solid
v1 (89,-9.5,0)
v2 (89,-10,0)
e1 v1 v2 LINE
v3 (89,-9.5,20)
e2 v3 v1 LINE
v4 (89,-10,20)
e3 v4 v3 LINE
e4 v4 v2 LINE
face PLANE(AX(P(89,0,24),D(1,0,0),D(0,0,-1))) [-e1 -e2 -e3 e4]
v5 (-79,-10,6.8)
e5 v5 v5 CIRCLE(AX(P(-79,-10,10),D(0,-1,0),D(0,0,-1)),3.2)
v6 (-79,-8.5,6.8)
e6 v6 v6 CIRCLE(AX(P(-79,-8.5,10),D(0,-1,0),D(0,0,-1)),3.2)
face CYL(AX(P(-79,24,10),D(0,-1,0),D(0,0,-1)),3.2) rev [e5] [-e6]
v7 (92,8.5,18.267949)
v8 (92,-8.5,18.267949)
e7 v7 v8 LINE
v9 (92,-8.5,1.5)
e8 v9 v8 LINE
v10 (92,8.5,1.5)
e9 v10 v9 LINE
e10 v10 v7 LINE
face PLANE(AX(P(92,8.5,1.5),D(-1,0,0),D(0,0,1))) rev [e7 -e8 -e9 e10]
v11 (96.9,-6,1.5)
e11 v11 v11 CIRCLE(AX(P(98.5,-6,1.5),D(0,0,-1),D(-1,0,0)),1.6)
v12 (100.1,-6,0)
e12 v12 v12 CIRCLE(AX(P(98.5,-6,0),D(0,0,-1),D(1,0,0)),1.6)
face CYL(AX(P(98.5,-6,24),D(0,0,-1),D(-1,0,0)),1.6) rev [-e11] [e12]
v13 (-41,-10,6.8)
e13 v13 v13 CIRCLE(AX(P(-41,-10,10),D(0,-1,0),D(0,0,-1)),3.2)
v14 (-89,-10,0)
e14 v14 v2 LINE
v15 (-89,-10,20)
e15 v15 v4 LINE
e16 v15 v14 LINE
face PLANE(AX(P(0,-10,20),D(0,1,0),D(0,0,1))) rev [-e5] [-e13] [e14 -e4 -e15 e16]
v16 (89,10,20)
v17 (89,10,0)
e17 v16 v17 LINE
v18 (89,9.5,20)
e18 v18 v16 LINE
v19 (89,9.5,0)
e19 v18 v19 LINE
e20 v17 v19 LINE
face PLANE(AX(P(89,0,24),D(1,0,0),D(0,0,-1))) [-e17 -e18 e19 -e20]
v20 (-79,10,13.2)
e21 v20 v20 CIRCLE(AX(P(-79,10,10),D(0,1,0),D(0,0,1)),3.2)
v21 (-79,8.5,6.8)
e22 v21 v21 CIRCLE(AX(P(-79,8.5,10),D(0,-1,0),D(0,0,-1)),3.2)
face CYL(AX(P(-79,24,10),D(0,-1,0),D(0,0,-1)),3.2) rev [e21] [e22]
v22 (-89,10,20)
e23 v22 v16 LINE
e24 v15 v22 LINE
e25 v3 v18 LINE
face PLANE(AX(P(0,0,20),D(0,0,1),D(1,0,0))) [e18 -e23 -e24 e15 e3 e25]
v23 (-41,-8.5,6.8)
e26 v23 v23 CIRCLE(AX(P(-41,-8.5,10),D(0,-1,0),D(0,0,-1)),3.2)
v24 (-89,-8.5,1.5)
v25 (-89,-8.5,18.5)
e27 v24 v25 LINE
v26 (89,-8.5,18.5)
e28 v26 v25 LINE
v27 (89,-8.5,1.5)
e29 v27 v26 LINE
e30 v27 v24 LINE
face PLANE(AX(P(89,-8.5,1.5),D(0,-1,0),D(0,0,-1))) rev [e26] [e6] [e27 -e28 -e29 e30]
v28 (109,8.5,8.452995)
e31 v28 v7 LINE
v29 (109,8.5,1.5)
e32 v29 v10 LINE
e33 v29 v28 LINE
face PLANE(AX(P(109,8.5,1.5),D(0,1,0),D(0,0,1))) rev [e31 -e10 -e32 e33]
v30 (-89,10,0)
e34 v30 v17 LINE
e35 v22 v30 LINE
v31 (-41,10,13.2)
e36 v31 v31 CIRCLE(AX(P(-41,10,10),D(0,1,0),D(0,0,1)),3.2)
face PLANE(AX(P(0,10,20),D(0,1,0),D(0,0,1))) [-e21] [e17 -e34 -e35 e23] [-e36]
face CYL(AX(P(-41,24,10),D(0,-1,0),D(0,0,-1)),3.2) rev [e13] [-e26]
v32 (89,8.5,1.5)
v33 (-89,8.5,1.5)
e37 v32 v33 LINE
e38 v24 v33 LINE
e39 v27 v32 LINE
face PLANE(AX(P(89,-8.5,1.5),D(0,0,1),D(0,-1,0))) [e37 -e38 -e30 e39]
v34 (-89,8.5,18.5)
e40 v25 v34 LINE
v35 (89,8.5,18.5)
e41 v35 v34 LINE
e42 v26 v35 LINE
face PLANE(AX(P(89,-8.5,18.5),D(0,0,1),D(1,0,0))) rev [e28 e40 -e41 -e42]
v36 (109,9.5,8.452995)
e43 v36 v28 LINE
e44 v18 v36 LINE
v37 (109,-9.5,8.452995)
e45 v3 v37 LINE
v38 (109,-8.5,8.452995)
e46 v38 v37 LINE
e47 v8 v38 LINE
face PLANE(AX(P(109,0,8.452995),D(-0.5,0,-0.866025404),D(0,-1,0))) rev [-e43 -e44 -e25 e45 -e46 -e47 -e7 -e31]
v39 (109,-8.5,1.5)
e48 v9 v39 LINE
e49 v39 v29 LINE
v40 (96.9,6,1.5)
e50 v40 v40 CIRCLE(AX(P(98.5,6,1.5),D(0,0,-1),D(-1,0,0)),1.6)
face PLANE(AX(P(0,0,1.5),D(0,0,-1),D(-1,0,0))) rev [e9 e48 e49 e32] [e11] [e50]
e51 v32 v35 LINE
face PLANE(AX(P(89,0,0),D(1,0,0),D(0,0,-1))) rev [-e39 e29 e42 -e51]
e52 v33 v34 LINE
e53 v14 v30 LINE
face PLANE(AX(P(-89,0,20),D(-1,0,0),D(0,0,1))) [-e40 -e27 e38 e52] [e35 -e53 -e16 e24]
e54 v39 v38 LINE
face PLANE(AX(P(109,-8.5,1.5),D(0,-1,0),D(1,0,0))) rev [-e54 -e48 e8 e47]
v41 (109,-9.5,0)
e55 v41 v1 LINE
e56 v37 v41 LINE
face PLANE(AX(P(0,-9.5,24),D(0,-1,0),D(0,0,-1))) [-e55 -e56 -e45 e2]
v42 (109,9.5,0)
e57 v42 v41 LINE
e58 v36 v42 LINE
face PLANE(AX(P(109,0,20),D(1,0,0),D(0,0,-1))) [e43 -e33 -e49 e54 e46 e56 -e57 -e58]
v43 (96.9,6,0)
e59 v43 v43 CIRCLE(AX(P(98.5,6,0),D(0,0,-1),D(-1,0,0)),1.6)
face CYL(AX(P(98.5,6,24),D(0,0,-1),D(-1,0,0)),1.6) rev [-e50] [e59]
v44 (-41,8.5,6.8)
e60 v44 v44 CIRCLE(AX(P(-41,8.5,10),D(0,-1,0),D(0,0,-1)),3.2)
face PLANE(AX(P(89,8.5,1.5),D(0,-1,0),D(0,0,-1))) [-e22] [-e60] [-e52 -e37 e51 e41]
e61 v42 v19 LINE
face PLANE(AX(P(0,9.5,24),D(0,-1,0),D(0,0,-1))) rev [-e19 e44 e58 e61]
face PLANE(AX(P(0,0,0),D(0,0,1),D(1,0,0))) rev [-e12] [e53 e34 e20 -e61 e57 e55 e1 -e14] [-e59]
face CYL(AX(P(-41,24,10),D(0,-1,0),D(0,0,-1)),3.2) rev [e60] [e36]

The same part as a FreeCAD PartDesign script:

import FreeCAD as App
import Part
import Sketcher

V = App.Vector
Q = App.Units.Quantity


def edges_at(feature, points):
    """Names of the edges that pass closest to the given points."""
    edges = feature.Shape.Edges
    near = lambda p: min(range(len(edges)), key=lambda i: edges[i].distToShape(Part.Vertex(*p))[0])
    return sorted({f"Edge{near(p) + 1}" for p in points})

doc = App.newDocument("Part")
body = doc.addObject("PartDesign::Body", "Body")

sketch1 = body.newObject("Sketcher::SketchObject", "Sketch")
sketch1.AttachmentSupport = (doc.getObject("XY_Plane"), [""])
sketch1.MapMode = "FlatFace"
sketch1.addGeometry(Part.LineSegment(V(-89, 10, 0), V(-89, -10, 0)), False)
sketch1.addGeometry(Part.LineSegment(V(-89, -10, 0), V(109, -10, 0)), False)
sketch1.addGeometry(Part.LineSegment(V(109, -10, 0), V(109, 10, 0)), False)
sketch1.addGeometry(Part.LineSegment(V(109, 10, 0), V(-89, 10, 0)), False)
sketch1.addConstraint(Sketcher.Constraint("Coincident", 0, 2, 1, 1))
sketch1.addConstraint(Sketcher.Constraint("Coincident", 1, 2, 2, 1))
sketch1.addConstraint(Sketcher.Constraint("Coincident", 2, 2, 3, 1))
sketch1.addConstraint(Sketcher.Constraint("Coincident", 3, 2, 0, 1))
sketch1.addConstraint(Sketcher.Constraint("Vertical", 0))
sketch1.addConstraint(Sketcher.Constraint("Horizontal", 1))
sketch1.addConstraint(Sketcher.Constraint("Vertical", 2))
sketch1.addConstraint(Sketcher.Constraint("Horizontal", 3))
sketch1.addConstraint(Sketcher.Constraint("DistanceX", 1, 1, 1, 2, Q("198 mm")))
sketch1.addConstraint(Sketcher.Constraint("DistanceY", 0, 2, 0, 1, Q("20 mm")))
sketch1.addConstraint(Sketcher.Constraint("DistanceX", 0, 2, -1, 1, Q("89 mm")))
sketch1.addConstraint(Sketcher.Constraint("DistanceY", 0, 2, -1, 1, Q("10 mm")))
pad1 = body.newObject("PartDesign::Pad", "Pad")
pad1.Profile = sketch1
pad1.Length = 20

sketch2 = body.newObject("Sketcher::SketchObject", "Sketch001")
sketch2.AttachmentSupport = (doc.getObject("YZ_Plane"), [""])
sketch2.MapMode = "FlatFace"
sketch2.AttachmentOffset = App.Placement(V(0, 0, -89), App.Rotation())
sketch2.addGeometry(Part.LineSegment(V(8, 2, 0), V(-8, 2, 0)), False)
sketch2.addGeometry(Part.LineSegment(V(-8, 2, 0), V(-8, 18, 0)), False)
sketch2.addGeometry(Part.LineSegment(V(-8, 18, 0), V(8, 18, 0)), False)
sketch2.addGeometry(Part.LineSegment(V(8, 18, 0), V(8, 2, 0)), False)
sketch2.addConstraint(Sketcher.Constraint("Coincident", 0, 2, 1, 1))
sketch2.addConstraint(Sketcher.Constraint("Coincident", 1, 2, 2, 1))
sketch2.addConstraint(Sketcher.Constraint("Coincident", 2, 2, 3, 1))
sketch2.addConstraint(Sketcher.Constraint("Coincident", 3, 2, 0, 1))
sketch2.addConstraint(Sketcher.Constraint("Horizontal", 0))
sketch2.addConstraint(Sketcher.Constraint("Vertical", 1))
sketch2.addConstraint(Sketcher.Constraint("Horizontal", 2))
sketch2.addConstraint(Sketcher.Constraint("Vertical", 3))
sketch2.addConstraint(Sketcher.Constraint("Equal", 2, 1))
sketch2.addConstraint(Sketcher.Constraint("DistanceX", 0, 2, 0, 1, Q("17 mm")))
sketch2.addConstraint(Sketcher.Constraint("DistanceX", 0, 2, -1, 1, Q("8.5 mm")))
sketch2.addConstraint(Sketcher.Constraint("DistanceY", -1, 1, 0, 2, Q("1.5 mm")))
pocket1 = body.newObject("PartDesign::Pocket", "Pocket")
pocket1.Profile = sketch2
pocket1.Length = 178
pocket1.Reversed = True

sketch3 = body.newObject("Sketcher::SketchObject", "Sketch002")
sketch3.AttachmentSupport = (doc.getObject("XY_Plane"), [""])
sketch3.MapMode = "FlatFace"
sketch3.AttachmentOffset = App.Placement(V(0, 0, 20), App.Rotation())
sketch3.addGeometry(Part.LineSegment(V(92, 8, 0), V(92, -8, 0)), False)
sketch3.addGeometry(Part.LineSegment(V(92, -8, 0), V(109, -8, 0)), False)
sketch3.addGeometry(Part.LineSegment(V(109, -8, 0), V(109, 8, 0)), False)
sketch3.addGeometry(Part.LineSegment(V(109, 8, 0), V(92, 8, 0)), False)
sketch3.addConstraint(Sketcher.Constraint("Coincident", 0, 2, 1, 1))
sketch3.addConstraint(Sketcher.Constraint("Coincident", 1, 2, 2, 1))
sketch3.addConstraint(Sketcher.Constraint("Coincident", 2, 2, 3, 1))
sketch3.addConstraint(Sketcher.Constraint("Coincident", 3, 2, 0, 1))
sketch3.addConstraint(Sketcher.Constraint("Vertical", 0))
sketch3.addConstraint(Sketcher.Constraint("Horizontal", 1))
sketch3.addConstraint(Sketcher.Constraint("Vertical", 2))
sketch3.addConstraint(Sketcher.Constraint("Horizontal", 3))
sketch3.addConstraint(Sketcher.Constraint("Equal", 3, 0))
sketch3.addConstraint(Sketcher.Constraint("DistanceX", 1, 1, 1, 2, Q("17 mm")))
sketch3.addConstraint(Sketcher.Constraint("DistanceX", -1, 1, 0, 2, Q("92 mm")))
sketch3.addConstraint(Sketcher.Constraint("DistanceY", 0, 2, -1, 1, Q("8.5 mm")))
pocket2 = body.newObject("PartDesign::Pocket", "Pocket001")
pocket2.Profile = sketch3
pocket2.Length = 18.5
doc.recompute()

chamfer = body.newObject("PartDesign::Chamfer", "Chamfer")
chamfer.Base = (pocket2, edges_at(pocket2, [(109, 9.25, 20)]))
chamfer.ChamferType = "Two distances"
chamfer.Size = 20
chamfer.Size2 = 11.547005

sketch4 = body.newObject("Sketcher::SketchObject", "Sketch003")
sketch4.AttachmentSupport = (doc.getObject("XY_Plane"), [""])
sketch4.MapMode = "FlatFace"
sketch4.addGeometry(Part.LineSegment(V(109, 10, 0), V(109, 9.5, 0)), False)
sketch4.addGeometry(Part.LineSegment(V(109, 9.5, 0), V(89, 9.5, 0)), False)
sketch4.addGeometry(Part.LineSegment(V(89, 9.5, 0), V(89, 10, 0)), False)
sketch4.addGeometry(Part.LineSegment(V(89, 10, 0), V(109, 10, 0)), False)
sketch4.addGeometry(Part.LineSegment(V(109, -9.5, 0), V(109, -10, 0)), False)
sketch4.addGeometry(Part.LineSegment(V(109, -10, 0), V(89, -10, 0)), False)
sketch4.addGeometry(Part.LineSegment(V(89, -10, 0), V(89, -9.5, 0)), False)
sketch4.addGeometry(Part.LineSegment(V(89, -9.5, 0), V(109, -9.5, 0)), False)
sketch4.addConstraint(Sketcher.Constraint("Coincident", 0, 2, 1, 1))
sketch4.addConstraint(Sketcher.Constraint("Coincident", 1, 2, 2, 1))
sketch4.addConstraint(Sketcher.Constraint("Coincident", 2, 2, 3, 1))
sketch4.addConstraint(Sketcher.Constraint("Coincident", 3, 2, 0, 1))
sketch4.addConstraint(Sketcher.Constraint("Coincident", 4, 2, 5, 1))
sketch4.addConstraint(Sketcher.Constraint("Coincident", 5, 2, 6, 1))
sketch4.addConstraint(Sketcher.Constraint("Coincident", 6, 2, 7, 1))
sketch4.addConstraint(Sketcher.Constraint("Coincident", 7, 2, 4, 1))
sketch4.addConstraint(Sketcher.Constraint("Vertical", 0))
sketch4.addConstraint(Sketcher.Constraint("Horizontal", 1))
sketch4.addConstraint(Sketcher.Constraint("Vertical", 2))
sketch4.addConstraint(Sketcher.Constraint("Horizontal", 3))
sketch4.addConstraint(Sketcher.Constraint("Vertical", 4))
sketch4.addConstraint(Sketcher.Constraint("Horizontal", 5))
sketch4.addConstraint(Sketcher.Constraint("Vertical", 6))
sketch4.addConstraint(Sketcher.Constraint("Horizontal", 7))
sketch4.addConstraint(Sketcher.Constraint("Symmetric", 3, 2, 4, 2, -1))
sketch4.addConstraint(Sketcher.Constraint("Symmetric", 1, 2, 6, 2, -1))
sketch4.addConstraint(Sketcher.Constraint("DistanceX", 1, 2, 1, 1, Q("20 mm")))
sketch4.addConstraint(Sketcher.Constraint("DistanceY", 0, 2, 0, 1, Q("0.5 mm")))
sketch4.addConstraint(Sketcher.Constraint("DistanceX", -1, 1, 0, 2, Q("109 mm")))
sketch4.addConstraint(Sketcher.Constraint("DistanceY", -1, 1, 2, 2, Q("10 mm")))
pocket3 = body.newObject("PartDesign::Pocket", "Pocket002")
pocket3.Profile = sketch4
pocket3.Length = 24
pocket3.Reversed = True

sketch5 = body.newObject("Sketcher::SketchObject", "Sketch004")
sketch5.AttachmentSupport = (doc.getObject("XY_Plane"), [""])
sketch5.MapMode = "FlatFace"
sketch5.addGeometry(Part.Circle(V(98.5, 6, 0), V(0, 0, 1), 1.6), False)
sketch5.addGeometry(Part.Circle(V(98.5, -6, 0), V(0, 0, 1), 1.6), False)
sketch5.addConstraint(Sketcher.Constraint("Equal", 0, 1))
sketch5.addConstraint(Sketcher.Constraint("Symmetric", 0, 3, 1, 3, -1))
sketch5.addConstraint(Sketcher.Constraint("Diameter", 0, Q("3.2 mm")))
sketch5.addConstraint(Sketcher.Constraint("DistanceY", -1, 1, 0, 3, Q("6 mm")))
sketch5.addConstraint(Sketcher.Constraint("DistanceX", -1, 1, 0, 3, Q("98.5 mm")))
pocket4 = body.newObject("PartDesign::Pocket", "Pocket003")
pocket4.Profile = sketch5
pocket4.Length = 24
pocket4.Reversed = True

sketch6 = body.newObject("Sketcher::SketchObject", "Sketch005")
sketch6.AttachmentSupport = (doc.getObject("XZ_Plane"), [""])
sketch6.MapMode = "FlatFace"
sketch6.AttachmentOffset = App.Placement(V(0, 0, 10), App.Rotation())
sketch6.addGeometry(Part.Circle(V(-79, 10, 0), V(0, 0, 1), 3.2), False)
sketch6.addGeometry(Part.Circle(V(-41, 10, 0), V(0, 0, 1), 3.2), False)
sketch6.addConstraint(Sketcher.Constraint("Equal", 0, 1))
sketch6.addConstraint(Sketcher.Constraint("Horizontal", 0, 3, 1, 3))
sketch6.addConstraint(Sketcher.Constraint("Diameter", 0, Q("6.4 mm")))
sketch6.addConstraint(Sketcher.Constraint("DistanceX", 0, 3, -1, 1, Q("79 mm")))
sketch6.addConstraint(Sketcher.Constraint("DistanceY", -1, 1, 0, 3, Q("10 mm")))
sketch6.addConstraint(Sketcher.Constraint("DistanceX", 1, 3, -1, 1, Q("41 mm")))
pocket5 = body.newObject("PartDesign::Pocket", "Pocket004")
pocket5.Profile = sketch6
pocket5.Length = 34

doc.recompute()
